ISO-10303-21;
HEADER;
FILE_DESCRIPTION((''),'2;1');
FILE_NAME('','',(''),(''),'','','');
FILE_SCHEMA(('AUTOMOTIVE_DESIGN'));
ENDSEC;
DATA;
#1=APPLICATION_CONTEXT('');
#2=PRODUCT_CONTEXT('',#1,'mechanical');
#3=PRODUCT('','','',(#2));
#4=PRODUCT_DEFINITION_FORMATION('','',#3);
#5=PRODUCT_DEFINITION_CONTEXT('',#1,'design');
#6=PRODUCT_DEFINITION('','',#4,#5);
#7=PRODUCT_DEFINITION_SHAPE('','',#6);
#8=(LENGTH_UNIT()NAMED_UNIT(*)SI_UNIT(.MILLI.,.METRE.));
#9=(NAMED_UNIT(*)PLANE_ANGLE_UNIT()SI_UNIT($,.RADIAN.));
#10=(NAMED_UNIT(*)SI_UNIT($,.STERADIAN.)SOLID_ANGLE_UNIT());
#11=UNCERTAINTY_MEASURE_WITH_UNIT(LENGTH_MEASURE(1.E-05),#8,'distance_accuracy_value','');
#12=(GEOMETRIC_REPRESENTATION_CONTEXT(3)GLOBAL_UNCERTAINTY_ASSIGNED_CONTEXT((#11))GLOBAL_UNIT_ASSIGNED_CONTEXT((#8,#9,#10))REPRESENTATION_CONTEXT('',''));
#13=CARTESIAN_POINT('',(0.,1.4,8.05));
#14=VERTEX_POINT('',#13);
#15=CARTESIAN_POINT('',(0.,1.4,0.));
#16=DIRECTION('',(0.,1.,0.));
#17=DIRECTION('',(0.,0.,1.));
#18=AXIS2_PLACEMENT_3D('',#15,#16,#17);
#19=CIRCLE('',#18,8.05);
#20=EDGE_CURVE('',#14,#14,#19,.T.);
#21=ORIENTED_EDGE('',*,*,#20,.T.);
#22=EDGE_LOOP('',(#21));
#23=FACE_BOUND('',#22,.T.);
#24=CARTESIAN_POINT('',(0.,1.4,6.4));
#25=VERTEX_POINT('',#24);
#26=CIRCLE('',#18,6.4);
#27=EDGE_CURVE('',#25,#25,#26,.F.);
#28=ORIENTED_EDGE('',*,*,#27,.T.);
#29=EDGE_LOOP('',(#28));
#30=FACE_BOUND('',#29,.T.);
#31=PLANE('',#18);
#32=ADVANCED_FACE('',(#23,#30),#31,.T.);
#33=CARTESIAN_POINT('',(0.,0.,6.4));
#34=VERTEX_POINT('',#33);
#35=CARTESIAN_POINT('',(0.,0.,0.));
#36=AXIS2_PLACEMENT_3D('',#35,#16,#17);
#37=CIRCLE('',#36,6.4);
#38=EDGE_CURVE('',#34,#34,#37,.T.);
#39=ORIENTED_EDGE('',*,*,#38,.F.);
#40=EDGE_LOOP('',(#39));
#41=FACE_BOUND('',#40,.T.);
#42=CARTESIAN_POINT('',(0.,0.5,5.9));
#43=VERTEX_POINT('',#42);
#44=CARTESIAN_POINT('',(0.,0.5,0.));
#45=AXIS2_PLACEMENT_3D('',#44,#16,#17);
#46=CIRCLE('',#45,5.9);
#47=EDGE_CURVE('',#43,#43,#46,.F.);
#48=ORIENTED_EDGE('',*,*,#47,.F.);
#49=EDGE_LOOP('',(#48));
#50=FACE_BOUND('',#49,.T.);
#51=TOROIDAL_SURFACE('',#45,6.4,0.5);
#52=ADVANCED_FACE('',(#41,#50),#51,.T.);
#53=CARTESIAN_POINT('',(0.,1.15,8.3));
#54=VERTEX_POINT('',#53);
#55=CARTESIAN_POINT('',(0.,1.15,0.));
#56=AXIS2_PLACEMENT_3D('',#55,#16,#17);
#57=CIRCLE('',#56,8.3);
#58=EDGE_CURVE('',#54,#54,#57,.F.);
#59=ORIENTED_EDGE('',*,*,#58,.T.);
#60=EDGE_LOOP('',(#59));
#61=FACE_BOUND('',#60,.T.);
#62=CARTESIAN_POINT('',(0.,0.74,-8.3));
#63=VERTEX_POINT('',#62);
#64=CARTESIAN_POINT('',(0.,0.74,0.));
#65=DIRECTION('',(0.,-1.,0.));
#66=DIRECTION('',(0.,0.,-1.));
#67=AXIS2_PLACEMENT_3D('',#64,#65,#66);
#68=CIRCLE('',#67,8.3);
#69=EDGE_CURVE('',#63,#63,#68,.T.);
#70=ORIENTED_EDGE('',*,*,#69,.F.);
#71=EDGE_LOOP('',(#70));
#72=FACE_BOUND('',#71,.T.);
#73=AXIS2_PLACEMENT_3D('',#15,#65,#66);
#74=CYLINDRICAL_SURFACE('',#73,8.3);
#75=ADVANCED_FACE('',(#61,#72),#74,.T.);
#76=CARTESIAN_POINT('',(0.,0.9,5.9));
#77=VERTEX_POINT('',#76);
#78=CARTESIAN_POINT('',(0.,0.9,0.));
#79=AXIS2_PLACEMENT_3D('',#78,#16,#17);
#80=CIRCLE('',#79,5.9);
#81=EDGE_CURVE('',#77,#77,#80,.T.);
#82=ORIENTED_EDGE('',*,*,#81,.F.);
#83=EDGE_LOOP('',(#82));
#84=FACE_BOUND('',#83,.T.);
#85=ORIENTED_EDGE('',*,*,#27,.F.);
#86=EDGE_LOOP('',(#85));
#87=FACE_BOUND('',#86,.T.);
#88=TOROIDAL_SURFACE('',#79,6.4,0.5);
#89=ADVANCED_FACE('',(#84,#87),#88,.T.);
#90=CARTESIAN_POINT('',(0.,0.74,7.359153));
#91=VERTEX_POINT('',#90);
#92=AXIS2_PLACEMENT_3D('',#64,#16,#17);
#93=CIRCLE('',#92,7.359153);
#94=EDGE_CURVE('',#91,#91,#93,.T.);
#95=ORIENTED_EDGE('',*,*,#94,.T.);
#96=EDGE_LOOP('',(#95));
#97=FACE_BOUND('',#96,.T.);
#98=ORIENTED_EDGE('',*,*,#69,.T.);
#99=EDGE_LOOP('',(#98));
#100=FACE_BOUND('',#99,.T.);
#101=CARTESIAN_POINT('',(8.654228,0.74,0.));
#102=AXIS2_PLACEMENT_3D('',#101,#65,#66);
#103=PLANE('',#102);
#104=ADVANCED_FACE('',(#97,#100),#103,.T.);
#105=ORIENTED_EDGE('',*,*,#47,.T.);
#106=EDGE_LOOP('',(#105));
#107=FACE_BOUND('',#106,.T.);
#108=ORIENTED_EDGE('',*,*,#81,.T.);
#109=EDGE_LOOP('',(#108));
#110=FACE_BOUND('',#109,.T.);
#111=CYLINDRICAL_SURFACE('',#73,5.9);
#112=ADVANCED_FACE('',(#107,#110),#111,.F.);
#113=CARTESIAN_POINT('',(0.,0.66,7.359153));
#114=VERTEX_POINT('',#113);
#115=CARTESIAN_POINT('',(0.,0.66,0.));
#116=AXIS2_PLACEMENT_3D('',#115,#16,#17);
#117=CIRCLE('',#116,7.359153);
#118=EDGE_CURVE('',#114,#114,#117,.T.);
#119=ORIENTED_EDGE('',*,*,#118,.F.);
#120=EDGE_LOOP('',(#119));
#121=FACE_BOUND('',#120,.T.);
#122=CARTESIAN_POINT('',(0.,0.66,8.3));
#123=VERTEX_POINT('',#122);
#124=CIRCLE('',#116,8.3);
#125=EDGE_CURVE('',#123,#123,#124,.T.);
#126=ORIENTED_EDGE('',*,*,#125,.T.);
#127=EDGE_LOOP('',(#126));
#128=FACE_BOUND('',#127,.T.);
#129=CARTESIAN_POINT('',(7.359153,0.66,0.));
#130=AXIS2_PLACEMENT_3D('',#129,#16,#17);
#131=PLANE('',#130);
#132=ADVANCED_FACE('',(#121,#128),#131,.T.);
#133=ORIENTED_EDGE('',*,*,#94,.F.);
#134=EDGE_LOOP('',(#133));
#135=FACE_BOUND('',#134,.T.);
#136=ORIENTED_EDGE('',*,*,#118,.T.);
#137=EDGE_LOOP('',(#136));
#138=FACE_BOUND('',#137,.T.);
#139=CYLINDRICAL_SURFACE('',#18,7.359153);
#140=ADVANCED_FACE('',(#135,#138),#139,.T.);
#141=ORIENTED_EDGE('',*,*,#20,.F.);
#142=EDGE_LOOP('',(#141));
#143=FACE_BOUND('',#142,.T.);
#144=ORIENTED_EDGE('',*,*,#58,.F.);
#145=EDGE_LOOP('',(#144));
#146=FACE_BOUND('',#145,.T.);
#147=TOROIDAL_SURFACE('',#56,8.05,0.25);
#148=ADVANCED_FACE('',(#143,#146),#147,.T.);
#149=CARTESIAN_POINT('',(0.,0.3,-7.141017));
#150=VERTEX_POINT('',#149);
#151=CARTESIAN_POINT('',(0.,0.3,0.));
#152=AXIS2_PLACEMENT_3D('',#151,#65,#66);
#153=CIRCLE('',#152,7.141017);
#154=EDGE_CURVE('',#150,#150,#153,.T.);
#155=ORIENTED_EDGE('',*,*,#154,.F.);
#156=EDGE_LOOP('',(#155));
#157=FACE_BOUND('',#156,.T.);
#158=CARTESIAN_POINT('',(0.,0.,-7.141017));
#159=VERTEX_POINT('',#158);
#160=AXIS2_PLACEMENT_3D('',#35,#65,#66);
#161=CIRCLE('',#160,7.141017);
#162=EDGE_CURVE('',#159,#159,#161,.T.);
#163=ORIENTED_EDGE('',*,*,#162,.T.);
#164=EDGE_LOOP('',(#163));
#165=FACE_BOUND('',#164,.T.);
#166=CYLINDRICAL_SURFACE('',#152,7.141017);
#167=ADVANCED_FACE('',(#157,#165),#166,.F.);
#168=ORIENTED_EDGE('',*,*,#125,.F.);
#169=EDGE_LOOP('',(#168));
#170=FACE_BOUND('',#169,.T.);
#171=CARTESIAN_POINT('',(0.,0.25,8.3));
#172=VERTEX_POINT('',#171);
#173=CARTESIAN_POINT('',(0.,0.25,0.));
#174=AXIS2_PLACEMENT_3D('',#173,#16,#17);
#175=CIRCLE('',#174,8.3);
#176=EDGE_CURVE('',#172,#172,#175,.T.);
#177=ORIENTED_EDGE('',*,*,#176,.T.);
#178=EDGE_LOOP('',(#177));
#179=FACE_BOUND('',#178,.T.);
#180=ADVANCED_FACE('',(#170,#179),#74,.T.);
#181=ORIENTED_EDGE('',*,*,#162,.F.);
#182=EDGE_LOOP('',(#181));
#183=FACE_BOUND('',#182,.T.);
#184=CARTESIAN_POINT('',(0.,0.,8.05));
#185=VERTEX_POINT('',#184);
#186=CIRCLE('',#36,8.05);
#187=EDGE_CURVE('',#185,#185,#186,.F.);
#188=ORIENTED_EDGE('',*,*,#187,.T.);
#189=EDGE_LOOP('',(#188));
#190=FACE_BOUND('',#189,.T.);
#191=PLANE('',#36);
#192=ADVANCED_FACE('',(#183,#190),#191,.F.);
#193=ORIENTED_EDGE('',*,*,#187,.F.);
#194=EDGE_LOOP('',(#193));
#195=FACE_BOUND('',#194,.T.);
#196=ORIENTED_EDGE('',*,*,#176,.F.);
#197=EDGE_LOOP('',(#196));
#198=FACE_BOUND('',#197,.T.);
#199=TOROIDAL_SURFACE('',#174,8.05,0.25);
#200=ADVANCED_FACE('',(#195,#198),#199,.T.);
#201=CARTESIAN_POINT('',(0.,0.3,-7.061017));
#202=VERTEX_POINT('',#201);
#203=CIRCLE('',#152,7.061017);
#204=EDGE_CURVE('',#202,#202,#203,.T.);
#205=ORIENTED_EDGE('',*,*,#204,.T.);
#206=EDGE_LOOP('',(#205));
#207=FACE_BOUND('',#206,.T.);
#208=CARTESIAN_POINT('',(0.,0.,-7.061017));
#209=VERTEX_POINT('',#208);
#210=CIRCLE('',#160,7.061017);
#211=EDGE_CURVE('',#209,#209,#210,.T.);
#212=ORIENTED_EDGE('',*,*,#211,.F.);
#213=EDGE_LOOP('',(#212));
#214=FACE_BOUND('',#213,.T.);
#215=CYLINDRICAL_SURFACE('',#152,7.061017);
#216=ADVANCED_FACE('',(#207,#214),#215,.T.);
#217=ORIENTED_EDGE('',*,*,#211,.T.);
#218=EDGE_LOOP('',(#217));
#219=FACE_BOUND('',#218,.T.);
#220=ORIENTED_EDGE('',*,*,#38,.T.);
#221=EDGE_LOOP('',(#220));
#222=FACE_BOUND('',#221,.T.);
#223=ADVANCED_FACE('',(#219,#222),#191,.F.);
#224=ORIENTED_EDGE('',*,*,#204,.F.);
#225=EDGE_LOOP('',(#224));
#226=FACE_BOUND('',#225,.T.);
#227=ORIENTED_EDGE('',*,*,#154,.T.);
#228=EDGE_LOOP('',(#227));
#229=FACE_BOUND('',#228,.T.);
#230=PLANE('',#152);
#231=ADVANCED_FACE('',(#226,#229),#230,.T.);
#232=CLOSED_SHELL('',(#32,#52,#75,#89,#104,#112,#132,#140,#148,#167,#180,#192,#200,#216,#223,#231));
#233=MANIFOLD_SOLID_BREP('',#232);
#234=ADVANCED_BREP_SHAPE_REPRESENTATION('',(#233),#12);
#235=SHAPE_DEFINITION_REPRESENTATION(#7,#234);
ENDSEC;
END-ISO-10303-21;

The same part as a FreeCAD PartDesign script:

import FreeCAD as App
import Part
import Sketcher

V = App.Vector


def edges_at(feature, points):
    """Names of the edges that pass closest to the given points."""
    edges = feature.Shape.Edges
    near = lambda p: min(range(len(edges)), key=lambda i: edges[i].distToShape(Part.Vertex(*p))[0])
    return sorted({f"Edge{near(p) + 1}" for p in points})

doc = App.newDocument("Part")
body = doc.addObject("PartDesign::Body", "Body")

sketch1 = body.newObject("Sketcher::SketchObject", "Sketch")
sketch1.AttachmentSupport = (doc.getObject("XZ_Plane"), [""])
sketch1.MapMode = "FlatFace"
sketch1.addGeometry([
    Part.Circle(V(0, 0, 0), V(0, 0, 1), 8),
    Part.Circle(V(0, 0, 0), V(0, 0, 1), 6),
], False)
sketch1.addConstraint([
    Sketcher.Constraint("Coincident", 0, 3, -1, 1),
    Sketcher.Constraint("Coincident", 1, 3, -1, 1),
    Sketcher.Constraint("Diameter", 0, 16.6),
    Sketcher.Constraint("Diameter", 1, 11.8),
])
pad1 = body.newObject("PartDesign::Pad", "Pad")
pad1.Profile = sketch1
pad1.Length = 1.4
pad1.Reversed = True

sketch2 = body.newObject("Sketcher::SketchObject", "Sketch001")
sketch2.AttachmentSupport = (doc.getObject("XY_Plane"), [""])
sketch2.MapMode = "FlatFace"
sketch2.addGeometry([
    Part.LineSegment(V(7.36, 0.74, 0), V(7.36, 0.66, 0)),
    Part.LineSegment(V(7.36, 0.66, 0), V(8.65, 0.66, 0)),
    Part.LineSegment(V(8.65, 0.66, 0), V(8.65, 0.74, 0)),
    Part.LineSegment(V(8.65, 0.74, 0), V(7.36, 0.74, 0)),
], False)
sketch2.addConstraint([
    Sketcher.Constraint("Coincident", 0, 2, 1, 1),
    Sketcher.Constraint("Coincident", 1, 2, 2, 1),
    Sketcher.Constraint("Coincident", 2, 2, 3, 1),
    Sketcher.Constraint("Coincident", 3, 2, 0, 1),
    Sketcher.Constraint("Vertical", 0),
    Sketcher.Constraint("Horizontal", 1),
    Sketcher.Constraint("Vertical", 2),
    Sketcher.Constraint("Horizontal", 3),
    Sketcher.Constraint("DistanceY", 0, 2, 0, 1, 0.08),
    Sketcher.Constraint("DistanceY", -1, 1, 0, 2, 0.66),
    Sketcher.Constraint("DistanceX", 1, 1, 1, 2, 1.295074),
    Sketcher.Constraint("DistanceX", -1, 1, 0, 2, 7.359153),
])
groove = body.newObject("PartDesign::Groove", "Groove")
groove.Profile = sketch2
groove.ReferenceAxis = (sketch2, ["V_Axis"])
groove.Angle = 360

sketch3 = body.newObject("Sketcher::SketchObject", "Sketch002")
sketch3.AttachmentSupport = (doc.getObject("XZ_Plane"), [""])
sketch3.MapMode = "FlatFace"
sketch3.addGeometry([
    Part.Circle(V(0, 0, 0), V(0, 0, 1), 7),
    Part.Circle(V(0, 0, 0), V(0, 0, 1), 7),
], False)
sketch3.addConstraint([
    Sketcher.Constraint("Coincident", 0, 3, -1, 1),
    Sketcher.Constraint("Coincident", 1, 3, -1, 1),
    Sketcher.Constraint("Diameter", 0, 14.282034),
    Sketcher.Constraint("Diameter", 1, 14.122034),
])
pocket1 = body.newObject("PartDesign::Pocket", "Pocket")
pocket1.Profile = sketch3
pocket1.Length = 0.3
doc.recompute()

fillet = body.newObject("PartDesign::Fillet", "Fillet")
fillet.Base = (pocket1, edges_at(pocket1, [(-5.9, 0, 0), (-5.9, 1.4, 0)]))
fillet.Radius = 0.5
doc.recompute()

fillet2 = body.newObject("PartDesign::Fillet", "Fillet001")
fillet2.Base = (fillet, edges_at(fillet, [(-8.3, 0, 0), (-8.3, 1.4, 0)]))
fillet2.Radius = 0.25

doc.recompute()
